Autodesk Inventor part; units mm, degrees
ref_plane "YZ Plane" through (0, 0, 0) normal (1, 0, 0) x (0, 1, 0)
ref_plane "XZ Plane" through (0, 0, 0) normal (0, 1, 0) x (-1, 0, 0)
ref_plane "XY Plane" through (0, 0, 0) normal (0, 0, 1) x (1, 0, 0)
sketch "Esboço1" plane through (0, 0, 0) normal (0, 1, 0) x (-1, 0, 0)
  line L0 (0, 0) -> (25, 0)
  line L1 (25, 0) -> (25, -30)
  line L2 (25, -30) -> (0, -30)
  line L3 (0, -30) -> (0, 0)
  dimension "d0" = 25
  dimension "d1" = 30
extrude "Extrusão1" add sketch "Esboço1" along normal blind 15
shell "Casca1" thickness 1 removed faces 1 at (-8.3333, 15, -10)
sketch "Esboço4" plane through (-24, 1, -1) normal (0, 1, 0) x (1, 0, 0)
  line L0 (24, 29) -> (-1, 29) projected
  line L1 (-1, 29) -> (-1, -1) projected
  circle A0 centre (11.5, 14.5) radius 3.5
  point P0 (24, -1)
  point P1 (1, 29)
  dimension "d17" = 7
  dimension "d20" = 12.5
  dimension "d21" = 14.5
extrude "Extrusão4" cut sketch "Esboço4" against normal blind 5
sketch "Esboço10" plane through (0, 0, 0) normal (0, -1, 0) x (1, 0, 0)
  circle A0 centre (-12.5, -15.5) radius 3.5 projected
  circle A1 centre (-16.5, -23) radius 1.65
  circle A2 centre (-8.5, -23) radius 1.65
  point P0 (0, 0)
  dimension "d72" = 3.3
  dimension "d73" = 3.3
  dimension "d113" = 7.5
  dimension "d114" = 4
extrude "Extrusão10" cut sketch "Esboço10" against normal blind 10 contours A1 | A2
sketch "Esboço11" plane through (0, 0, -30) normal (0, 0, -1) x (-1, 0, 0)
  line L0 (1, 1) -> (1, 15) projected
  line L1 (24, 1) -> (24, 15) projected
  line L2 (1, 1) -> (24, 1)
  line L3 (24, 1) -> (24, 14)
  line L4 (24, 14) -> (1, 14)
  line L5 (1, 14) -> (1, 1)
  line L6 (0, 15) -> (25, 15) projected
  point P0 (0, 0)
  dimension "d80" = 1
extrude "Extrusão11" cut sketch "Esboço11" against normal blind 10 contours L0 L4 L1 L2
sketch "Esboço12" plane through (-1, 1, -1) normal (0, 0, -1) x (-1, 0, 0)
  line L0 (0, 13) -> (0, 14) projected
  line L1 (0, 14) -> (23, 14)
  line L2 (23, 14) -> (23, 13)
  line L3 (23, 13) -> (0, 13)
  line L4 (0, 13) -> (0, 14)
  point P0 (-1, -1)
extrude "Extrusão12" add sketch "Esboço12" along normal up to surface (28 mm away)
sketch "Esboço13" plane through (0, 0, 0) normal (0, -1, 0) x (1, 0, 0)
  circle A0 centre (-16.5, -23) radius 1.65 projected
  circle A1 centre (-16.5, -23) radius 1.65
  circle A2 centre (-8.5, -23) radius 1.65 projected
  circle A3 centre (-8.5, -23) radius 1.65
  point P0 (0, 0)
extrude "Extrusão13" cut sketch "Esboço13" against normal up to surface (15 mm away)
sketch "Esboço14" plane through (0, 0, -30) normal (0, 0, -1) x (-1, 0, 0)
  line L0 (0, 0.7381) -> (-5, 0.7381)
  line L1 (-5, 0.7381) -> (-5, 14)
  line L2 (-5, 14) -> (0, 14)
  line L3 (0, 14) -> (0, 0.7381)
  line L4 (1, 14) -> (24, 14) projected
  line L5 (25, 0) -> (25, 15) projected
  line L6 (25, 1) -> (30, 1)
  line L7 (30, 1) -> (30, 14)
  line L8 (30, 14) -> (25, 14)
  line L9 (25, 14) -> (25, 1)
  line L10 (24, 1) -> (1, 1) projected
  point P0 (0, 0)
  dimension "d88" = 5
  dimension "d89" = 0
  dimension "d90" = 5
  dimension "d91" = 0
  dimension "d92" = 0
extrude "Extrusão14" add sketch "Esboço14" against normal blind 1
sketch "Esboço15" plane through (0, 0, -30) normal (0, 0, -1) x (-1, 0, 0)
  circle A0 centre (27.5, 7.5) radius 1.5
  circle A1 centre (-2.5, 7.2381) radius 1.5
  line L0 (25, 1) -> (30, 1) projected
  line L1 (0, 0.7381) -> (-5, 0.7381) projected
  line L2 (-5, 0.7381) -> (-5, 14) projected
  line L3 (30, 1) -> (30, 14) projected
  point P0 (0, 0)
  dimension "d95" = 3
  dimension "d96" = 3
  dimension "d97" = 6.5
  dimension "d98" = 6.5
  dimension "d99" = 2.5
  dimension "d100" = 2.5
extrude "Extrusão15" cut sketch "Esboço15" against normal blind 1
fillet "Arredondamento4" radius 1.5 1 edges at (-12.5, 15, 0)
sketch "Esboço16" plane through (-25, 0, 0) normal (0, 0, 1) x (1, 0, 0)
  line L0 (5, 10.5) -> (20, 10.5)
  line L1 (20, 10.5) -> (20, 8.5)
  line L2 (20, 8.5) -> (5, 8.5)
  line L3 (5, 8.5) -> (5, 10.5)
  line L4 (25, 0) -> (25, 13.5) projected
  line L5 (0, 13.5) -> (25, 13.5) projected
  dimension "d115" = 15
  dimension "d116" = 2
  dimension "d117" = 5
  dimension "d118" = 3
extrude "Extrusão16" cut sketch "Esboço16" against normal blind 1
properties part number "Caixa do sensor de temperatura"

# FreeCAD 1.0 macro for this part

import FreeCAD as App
import Part
import Sketcher


def edges_at(feature, points):
    """Names of the edges that pass closest to the given points."""
    edges = feature.Shape.Edges
    near = lambda p: min(range(len(edges)), key=lambda i: edges[i].distToShape(Part.Vertex(*p))[0])
    return sorted({f"Edge{near(p) + 1}" for p in points})


def faces_at(feature, points):
    """Names of the faces that lie closest to the given points."""
    faces = feature.Shape.Faces
    near = lambda p: min(range(len(faces)), key=lambda i: faces[i].distToShape(Part.Vertex(*p))[0])
    return sorted({f"Face{near(p) + 1}" for p in points})

doc = App.newDocument("Part")
body = doc.addObject("PartDesign::Body", "Body")

sketch1 = body.newObject("Sketcher::SketchObject", "Sketch")
sketch1.AttachmentSupport = (doc.getObject("XZ_Plane"), [""])
sketch1.MapMode = "FlatFace"
sketch1.addGeometry(Part.LineSegment(App.Vector(-25, 0, 0), App.Vector(0, 0, 0)), False)
sketch1.addGeometry(Part.LineSegment(App.Vector(0, 0, 0), App.Vector(0, -30, 0)), False)
sketch1.addGeometry(Part.LineSegment(App.Vector(0, -30, 0), App.Vector(-25, -30, 0)), False)
sketch1.addGeometry(Part.LineSegment(App.Vector(-25, -30, 0), App.Vector(-25, 0, 0)), False)
sketch1.addConstraint(Sketcher.Constraint("Coincident", 0, 2, 1, 1))
sketch1.addConstraint(Sketcher.Constraint("Coincident", 1, 2, 2, 1))
sketch1.addConstraint(Sketcher.Constraint("Coincident", 2, 2, 3, 1))
sketch1.addConstraint(Sketcher.Constraint("Coincident", 3, 2, 0, 1))
sketch1.addConstraint(Sketcher.Constraint("Horizontal", 0))
sketch1.addConstraint(Sketcher.Constraint("Vertical", 1))
sketch1.addConstraint(Sketcher.Constraint("Horizontal", 2))
sketch1.addConstraint(Sketcher.Constraint("Vertical", 3))
sketch1.addConstraint(Sketcher.Constraint("Coincident", 0, 2, -1, 1))
sketch1.addConstraint(Sketcher.Constraint("DistanceX", 0, 1, 0, 2, 25.0))
sketch1.addConstraint(Sketcher.Constraint("DistanceY", 1, 2, 1, 1, 30.0))
pad1 = body.newObject("PartDesign::Pad", "Pad")
pad1.Profile = sketch1
pad1.Length = 15
pad1.Reversed = True
doc.recompute()

thickness = body.newObject("PartDesign::Thickness", "Thickness")
thickness.Base = (pad1, faces_at(pad1, [(-8.333, 15, -10)]))
thickness.Value = 1
thickness.Reversed = True
thickness.Join = "Intersection"

sketch2 = body.newObject("Sketcher::SketchObject", "Sketch001")
sketch2.AttachmentSupport = (doc.getObject("XZ_Plane"), [""])
sketch2.MapMode = "FlatFace"
sketch2.AttachmentOffset = App.Placement(App.Vector(0, 0, -1), App.Rotation())
sketch2.addGeometry(Part.Circle(App.Vector(-12.5, -15.5, 0), App.Vector(0, 0, 1), 3.5), False)
sketch2.addConstraint(Sketcher.Constraint("Diameter", 0, 7.0))
sketch2.addConstraint(Sketcher.Constraint("DistanceX", 0, 3, -1, 1, 12.5))
sketch2.addConstraint(Sketcher.Constraint("DistanceY", 0, 3, -1, 1, 15.5))
pocket1 = body.newObject("PartDesign::Pocket", "Pocket")
pocket1.Profile = sketch2
pocket1.Length = 5
pocket1.Reversed = True

sketch3 = body.newObject("Sketcher::SketchObject", "Sketch002")
sketch3.AttachmentSupport = (doc.getObject("XZ_Plane"), [""])
sketch3.MapMode = "FlatFace"
sketch3.addGeometry(Part.Circle(App.Vector(-16.5, -23, 0), App.Vector(0, 0, 1), 1.6), False)
sketch3.addGeometry(Part.Circle(App.Vector(-8.5, -23, 0), App.Vector(0, 0, 1), 1.6), False)
sketch3.addConstraint(Sketcher.Constraint("Equal", 0, 1))
sketch3.addConstraint(Sketcher.Constraint("Horizontal", 0, 3, 1, 3))
sketch3.addConstraint(Sketcher.Constraint("Diameter", 0, 3.3))
sketch3.addConstraint(Sketcher.Constraint("DistanceY", 0, 3, -1, 1, 23.0))
sketch3.addConstraint(Sketcher.Constraint("DistanceX", 0, 3, 1, 3, 8.0))
sketch3.addConstraint(Sketcher.Constraint("DistanceX", 0, 3, -1, 1, 16.5))
pocket2 = body.newObject("PartDesign::Pocket", "Pocket001")
pocket2.Profile = sketch3
pocket2.Length = 10

sketch4 = body.newObject("Sketcher::SketchObject", "Sketch003")
sketch4.AttachmentSupport = (doc.getObject("XY_Plane"), [""])
sketch4.MapMode = "FlatFace"
sketch4.AttachmentOffset = App.Placement(App.Vector(0, 0, -30), App.Rotation())
sketch4.addGeometry(Part.LineSegment(App.Vector(-1, 14, 0), App.Vector(-1, 1, 0)), False)
sketch4.addGeometry(Part.LineSegment(App.Vector(-1, 1, 0), App.Vector(-24, 1, 0)), False)
sketch4.addGeometry(Part.LineSegment(App.Vector(-24, 1, 0), App.Vector(-24, 14, 0)), False)
sketch4.addGeometry(Part.LineSegment(App.Vector(-24, 14, 0), App.Vector(-1, 14, 0)), False)
sketch4.addConstraint(Sketcher.Constraint("Coincident", 0, 2, 1, 1))
sketch4.addConstraint(Sketcher.Constraint("Coincident", 1, 2, 2, 1))
sketch4.addConstraint(Sketcher.Constraint("Coincident", 2, 2, 3, 1))
sketch4.addConstraint(Sketcher.Constraint("Coincident", 3, 2, 0, 1))
sketch4.addConstraint(Sketcher.Constraint("Vertical", 0))
sketch4.addConstraint(Sketcher.Constraint("Horizontal", 1))
sketch4.addConstraint(Sketcher.Constraint("Vertical", 2))
sketch4.addConstraint(Sketcher.Constraint("Horizontal", 3))
sketch4.addConstraint(Sketcher.Constraint("DistanceX", 0, 2, -1, 1, 1.0))
sketch4.addConstraint(Sketcher.Constraint("DistanceY", -1, 1, 0, 2, 1.0))
sketch4.addConstraint(Sketcher.Constraint("DistanceX", 1, 2, 1, 1, 23.0))
sketch4.addConstraint(Sketcher.Constraint("DistanceY", 0, 2, 0, 1, 13.0))
pocket3 = body.newObject("PartDesign::Pocket", "Pocket002")
pocket3.Profile = sketch4
pocket3.Length = 10
pocket3.Reversed = True

sketch5 = body.newObject("Sketcher::SketchObject", "Sketch004")
sketch5.AttachmentSupport = (doc.getObject("XY_Plane"), [""])
sketch5.MapMode = "FlatFace"
sketch5.AttachmentOffset = App.Placement(App.Vector(0, 0, -1), App.Rotation())
sketch5.addGeometry(Part.LineSegment(App.Vector(-1, 15, 0), App.Vector(-1, 14, 0)), False)
sketch5.addGeometry(Part.LineSegment(App.Vector(-1, 14, 0), App.Vector(-24, 14, 0)), False)
sketch5.addGeometry(Part.LineSegment(App.Vector(-24, 14, 0), App.Vector(-24, 15, 0)), False)
sketch5.addGeometry(Part.LineSegment(App.Vector(-24, 15, 0), App.Vector(-1, 15, 0)), False)
sketch5.addConstraint(Sketcher.Constraint("Coincident", 0, 2, 1, 1))
sketch5.addConstraint(Sketcher.Constraint("Coincident", 1, 2, 2, 1))
sketch5.addConstraint(Sketcher.Constraint("Coincident", 2, 2, 3, 1))
sketch5.addConstraint(Sketcher.Constraint("Coincident", 3, 2, 0, 1))
sketch5.addConstraint(Sketcher.Constraint("Vertical", 0))
sketch5.addConstraint(Sketcher.Constraint("Horizontal", 1))
sketch5.addConstraint(Sketcher.Constraint("Vertical", 2))
sketch5.addConstraint(Sketcher.Constraint("Horizontal", 3))
sketch5.addConstraint(Sketcher.Constraint("DistanceX", 1, 2, 1, 1, 23.0))
sketch5.addConstraint(Sketcher.Constraint("DistanceY", 0, 2, 0, 1, 1.0))
sketch5.addConstraint(Sketcher.Constraint("DistanceX", 0, 2, -1, 1, 1.0))
sketch5.addConstraint(Sketcher.Constraint("DistanceY", -1, 1, 0, 2, 14.0))
pad2 = body.newObject("PartDesign::Pad", "Pad001")
pad2.Profile = sketch5
pad2.Length = 28
pad2.Reversed = True

sketch6 = body.newObject("Sketcher::SketchObject", "Sketch005")
sketch6.AttachmentSupport = (doc.getObject("XZ_Plane"), [""])
sketch6.MapMode = "FlatFace"
sketch6.addGeometry(Part.Circle(App.Vector(-16.5, -23, 0), App.Vector(0, 0, 1), 1.6), False)
sketch6.addGeometry(Part.Circle(App.Vector(-8.5, -23, 0), App.Vector(0, 0, 1), 1.6), False)
sketch6.addConstraint(Sketcher.Constraint("Equal", 0, 1))
sketch6.addConstraint(Sketcher.Constraint("Horizontal", 0, 3, 1, 3))
sketch6.addConstraint(Sketcher.Constraint("Diameter", 0, 3.3))
sketch6.addConstraint(Sketcher.Constraint("DistanceY", 0, 3, -1, 1, 23.0))
sketch6.addConstraint(Sketcher.Constraint("DistanceX", 0, 3, 1, 3, 8.0))
sketch6.addConstraint(Sketcher.Constraint("DistanceX", 0, 3, -1, 1, 16.5))
pocket4 = body.newObject("PartDesign::Pocket", "Pocket003")
pocket4.Profile = sketch6
pocket4.Length = 15

sketch7 = body.newObject("Sketcher::SketchObject", "Sketch006")
sketch7.AttachmentSupport = (doc.getObject("XY_Plane"), [""])
sketch7.MapMode = "FlatFace"
sketch7.AttachmentOffset = App.Placement(App.Vector(0, 0, -30), App.Rotation())
sketch7.addGeometry(Part.LineSegment(App.Vector(5, 1, 0), App.Vector(0, 1, 0)), False)
sketch7.addGeometry(Part.LineSegment(App.Vector(0, 1, 0), App.Vector(0, 14, 0)), False)
sketch7.addGeometry(Part.LineSegment(App.Vector(0, 14, 0), App.Vector(5, 14, 0)), False)
sketch7.addGeometry(Part.LineSegment(App.Vector(5, 14, 0), App.Vector(5, 1, 0)), False)
sketch7.addGeometry(Part.LineSegment(App.Vector(-25, 14, 0), App.Vector(-25, 1, 0)), False)
sketch7.addGeometry(Part.LineSegment(App.Vector(-25, 1, 0), App.Vector(-30, 1, 0)), False)
sketch7.addGeometry(Part.LineSegment(App.Vector(-30, 1, 0), App.Vector(-30, 14, 0)), False)
sketch7.addGeometry(Part.LineSegment(App.Vector(-30, 14, 0), App.Vector(-25, 14, 0)), False)
sketch7.addConstraint(Sketcher.Constraint("Coincident", 0, 2, 1, 1))
sketch7.addConstraint(Sketcher.Constraint("Coincident", 1, 2, 2, 1))
sketch7.addConstraint(Sketcher.Constraint("Coincident", 2, 2, 3, 1))
sketch7.addConstraint(Sketcher.Constraint("Coincident", 3, 2, 0, 1))
sketch7.addConstraint(Sketcher.Constraint("Coincident", 4, 2, 5, 1))
sketch7.addConstraint(Sketcher.Constraint("Coincident", 5, 2, 6, 1))
sketch7.addConstraint(Sketcher.Constraint("Coincident", 6, 2, 7, 1))
sketch7.addConstraint(Sketcher.Constraint("Coincident", 7, 2, 4, 1))
sketch7.addConstraint(Sketcher.Constraint("Horizontal", 0))
sketch7.addConstraint(Sketcher.Constraint("Vertical", 1))
sketch7.addConstraint(Sketcher.Constraint("Horizontal", 2))
sketch7.addConstraint(Sketcher.Constraint("Vertical", 3))
sketch7.addConstraint(Sketcher.Constraint("Vertical", 4))
sketch7.addConstraint(Sketcher.Constraint("Horizontal", 5))
sketch7.addConstraint(Sketcher.Constraint("Vertical", 6))
sketch7.addConstraint(Sketcher.Constraint("Horizontal", 7))
sketch7.addConstraint(Sketcher.Constraint("PointOnObject", 0, 2, -2))
sketch7.addConstraint(Sketcher.Constraint("Horizontal", 2, 2, 6, 2))
sketch7.addConstraint(Sketcher.Constraint("Equal", 2, 5))
sketch7.addConstraint(Sketcher.Constraint("DistanceX", 0, 2, 0, 1, 5.0))
sketch7.addConstraint(Sketcher.Constraint("DistanceY", 4, 2, 4, 1, 13.0))
sketch7.addConstraint(Sketcher.Constraint("DistanceY", -1, 1, 1, 2, 14.0))
sketch7.addConstraint(Sketcher.Constraint("DistanceX", 4, 2, -1, 1, 25.0))
sketch7.addConstraint(Sketcher.Constraint("DistanceY", 1, 1, 1, 2, 13.262))
pad3 = body.newObject("PartDesign::Pad", "Pad002")
pad3.Profile = sketch7
pad3.Length = 1

sketch8 = body.newObject("Sketcher::SketchObject", "Sketch007")
sketch8.AttachmentSupport = (doc.getObject("XY_Plane"), [""])
sketch8.MapMode = "FlatFace"
sketch8.AttachmentOffset = App.Placement(App.Vector(0, 0, -30), App.Rotation())
sketch8.addGeometry(Part.Circle(App.Vector(-27.5, 7.5, 0), App.Vector(0, 0, 1), 1.5), False)
sketch8.addGeometry(Part.Circle(App.Vector(2.5, 7.2, 0), App.Vector(0, 0, 1), 1.5), False)
sketch8.addConstraint(Sketcher.Constraint("Equal", 0, 1))
sketch8.addConstraint(Sketcher.Constraint("Diameter", 0, 3.0))
sketch8.addConstraint(Sketcher.Constraint("DistanceX", -1, 1, 1, 3, 2.5))
sketch8.addConstraint(Sketcher.Constraint("DistanceX", 0, 3, 1, 3, 30.0))
sketch8.addConstraint(Sketcher.Constraint("DistanceY", -1, 1, 0, 3, 7.5))
sketch8.addConstraint(Sketcher.Constraint("DistanceY", -1, 1, 1, 3, 7.238))
pocket5 = body.newObject("PartDesign::Pocket", "Pocket004")
pocket5.Profile = sketch8
pocket5.Length = 1
pocket5.Reversed = True
doc.recompute()

fillet = body.newObject("PartDesign::Fillet", "Fillet")
fillet.Base = (pocket5, edges_at(pocket5, [(-12.5, 15, 0)]))
fillet.Radius = 1.5

sketch9 = body.newObject("Sketcher::SketchObject", "Sketch008")
sketch9.AttachmentSupport = (doc.getObject("XY_Plane"), [""])
sketch9.MapMode = "FlatFace"
sketch9.addGeometry(Part.LineSegment(App.Vector(-5, 10.5, 0), App.Vector(-20, 10.5, 0)), False)
sketch9.addGeometry(Part.LineSegment(App.Vector(-20, 10.5, 0), App.Vector(-20, 8.5, 0)), False)
sketch9.addGeometry(Part.LineSegment(App.Vector(-20, 8.5, 0), App.Vector(-5, 8.5, 0)), False)
sketch9.addGeometry(Part.LineSegment(App.Vector(-5, 8.5, 0), App.Vector(-5, 10.5, 0)), False)
sketch9.addConstraint(Sketcher.Constraint("Coincident", 0, 2, 1, 1))
sketch9.addConstraint(Sketcher.Constraint("Coincident", 1, 2, 2, 1))
sketch9.addConstraint(Sketcher.Constraint("Coincident", 2, 2, 3, 1))
sketch9.addConstraint(Sketcher.Constraint("Coincident", 3, 2, 0, 1))
sketch9.addConstraint(Sketcher.Constraint("Horizontal", 0))
sketch9.addConstraint(Sketcher.Constraint("Vertical", 1))
sketch9.addConstraint(Sketcher.Constraint("Horizontal", 2))
sketch9.addConstraint(Sketcher.Constraint("Vertical", 3))
sketch9.addConstraint(Sketcher.Constraint("DistanceX", 0, 2, 0, 1, 15.0))
sketch9.addConstraint(Sketcher.Constraint("DistanceY", 1, 2, 1, 1, 2.0))
sketch9.addConstraint(Sketcher.Constraint("DistanceX", 2, 2, -1, 1, 5.0))
sketch9.addConstraint(Sketcher.Constraint("DistanceY", -1, 1, 0, 2, 10.5))
pocket6 = body.newObject("PartDesign::Pocket", "Pocket005")
pocket6.Profile = sketch9
pocket6.Length = 1

doc.recompute()
